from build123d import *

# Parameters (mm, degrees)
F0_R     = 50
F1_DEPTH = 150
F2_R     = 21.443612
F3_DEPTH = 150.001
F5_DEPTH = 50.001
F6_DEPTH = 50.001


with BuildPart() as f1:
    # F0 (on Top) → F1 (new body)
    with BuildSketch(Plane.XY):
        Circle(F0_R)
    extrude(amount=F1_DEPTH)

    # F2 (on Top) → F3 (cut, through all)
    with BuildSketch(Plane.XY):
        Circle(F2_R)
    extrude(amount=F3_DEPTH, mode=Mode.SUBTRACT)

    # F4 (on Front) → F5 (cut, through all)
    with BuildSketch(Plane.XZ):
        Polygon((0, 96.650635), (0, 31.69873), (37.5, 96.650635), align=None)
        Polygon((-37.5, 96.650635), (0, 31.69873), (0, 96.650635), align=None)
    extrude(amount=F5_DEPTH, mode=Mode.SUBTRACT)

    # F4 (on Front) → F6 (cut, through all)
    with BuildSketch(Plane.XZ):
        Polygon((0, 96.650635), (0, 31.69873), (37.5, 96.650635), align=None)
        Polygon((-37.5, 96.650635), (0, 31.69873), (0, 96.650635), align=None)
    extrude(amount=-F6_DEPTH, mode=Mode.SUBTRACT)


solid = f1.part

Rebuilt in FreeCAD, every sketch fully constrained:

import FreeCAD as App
import Part
import Sketcher
Q = App.Units.Quantity


def add_polygon(sketch, points):
    """Adds a closed chain of lines whose ends are joined by coincident constraints."""
    first, n = sketch.GeometryCount, len(points)
    for a, b in zip(points, points[1:] + points[:1]):
        sketch.addGeometry(Part.LineSegment(App.Vector(*a, 0), App.Vector(*b, 0)), False)
    for i in range(n):
        sketch.addConstraint(Sketcher.Constraint("Coincident", first + i, 2, first + (i + 1) % n, 1))

doc = App.newDocument("Part")
body = doc.addObject("PartDesign::Body", "Body")

# Sketch on XY plane
sketch1 = body.newObject("Sketcher::SketchObject", "Sketch")
sketch1.AttachmentSupport = (doc.getObject("XY_Plane"), [""])
sketch1.MapMode = "FlatFace"
sketch1.addGeometry(Part.Circle(App.Vector(0, 0, 0), App.Vector(0, 0, 1), 50), False)
sketch1.addConstraint([
    Sketcher.Constraint("Coincident", 0, 3, -1, 1),
    Sketcher.Constraint("Diameter", 0, 100.0),
])
pad1 = body.newObject("PartDesign::Pad", "Pad")
pad1.Profile = sketch1
pad1.Length = 150

# Sketch on XY plane
sketch2 = body.newObject("Sketcher::SketchObject", "Sketch001")
sketch2.AttachmentSupport = (doc.getObject("XY_Plane"), [""])
sketch2.MapMode = "FlatFace"
sketch2.addGeometry(Part.Circle(App.Vector(0, 0, 0), App.Vector(0, 0, 1), 21), False)
sketch2.addConstraint([
    Sketcher.Constraint("Coincident", 0, 3, -1, 1),
    Sketcher.Constraint("Diameter", 0, 42.887224),
])
pocket1 = body.newObject("PartDesign::Pocket", "Pocket")
pocket1.Profile = sketch2
pocket1.Type = "ThroughAll"
pocket1.Reversed = True

# Sketch on XZ plane
sketch3 = body.newObject("Sketcher::SketchObject", "Sketch002")
sketch3.AttachmentSupport = (doc.getObject("XZ_Plane"), [""])
sketch3.MapMode = "FlatFace"
add_polygon(sketch3, [(0, 32), (38, 97), (-38, 97)])  # lines 0-2
sketch3.addConstraint([
    Sketcher.Constraint("Horizontal", 1),
    Sketcher.Constraint("PointOnObject", 2, 2, -2),
    Sketcher.Constraint("Equal", 0, 2),
    Sketcher.Constraint("DistanceX", 1, 2, 1, 1, 75.0),
    Sketcher.Constraint("Angle", 0, Q("60 deg")),
    Sketcher.Constraint("DistanceY", -1, 1, 2, 2, 31.69873),
])
pocket2 = body.newObject("PartDesign::Pocket", "Pocket001")
pocket2.Profile = sketch3
pocket2.Type = "ThroughAll"
pocket2.Reversed = True

# Sketch on XZ plane
sketch4 = body.newObject("Sketcher::SketchObject", "Sketch003")
sketch4.AttachmentSupport = (doc.getObject("XZ_Plane"), [""])
sketch4.MapMode = "FlatFace"
add_polygon(sketch4, [(0, 32), (38, 97), (-38, 97)])  # lines 0-2
sketch4.addConstraint([
    Sketcher.Constraint("Horizontal", 1),
    Sketcher.Constraint("PointOnObject", 2, 2, -2),
    Sketcher.Constraint("Equal", 0, 2),
    Sketcher.Constraint("DistanceX", 1, 2, 1, 1, 75.0),
    Sketcher.Constraint("Angle", 0, Q("60 deg")),
    Sketcher.Constraint("DistanceY", -1, 1, 2, 2, 31.69873),
])
pocket3 = body.newObject("PartDesign::Pocket", "Pocket002")
pocket3.Profile = sketch4
pocket3.Type = "ThroughAll"

doc.recompute()
